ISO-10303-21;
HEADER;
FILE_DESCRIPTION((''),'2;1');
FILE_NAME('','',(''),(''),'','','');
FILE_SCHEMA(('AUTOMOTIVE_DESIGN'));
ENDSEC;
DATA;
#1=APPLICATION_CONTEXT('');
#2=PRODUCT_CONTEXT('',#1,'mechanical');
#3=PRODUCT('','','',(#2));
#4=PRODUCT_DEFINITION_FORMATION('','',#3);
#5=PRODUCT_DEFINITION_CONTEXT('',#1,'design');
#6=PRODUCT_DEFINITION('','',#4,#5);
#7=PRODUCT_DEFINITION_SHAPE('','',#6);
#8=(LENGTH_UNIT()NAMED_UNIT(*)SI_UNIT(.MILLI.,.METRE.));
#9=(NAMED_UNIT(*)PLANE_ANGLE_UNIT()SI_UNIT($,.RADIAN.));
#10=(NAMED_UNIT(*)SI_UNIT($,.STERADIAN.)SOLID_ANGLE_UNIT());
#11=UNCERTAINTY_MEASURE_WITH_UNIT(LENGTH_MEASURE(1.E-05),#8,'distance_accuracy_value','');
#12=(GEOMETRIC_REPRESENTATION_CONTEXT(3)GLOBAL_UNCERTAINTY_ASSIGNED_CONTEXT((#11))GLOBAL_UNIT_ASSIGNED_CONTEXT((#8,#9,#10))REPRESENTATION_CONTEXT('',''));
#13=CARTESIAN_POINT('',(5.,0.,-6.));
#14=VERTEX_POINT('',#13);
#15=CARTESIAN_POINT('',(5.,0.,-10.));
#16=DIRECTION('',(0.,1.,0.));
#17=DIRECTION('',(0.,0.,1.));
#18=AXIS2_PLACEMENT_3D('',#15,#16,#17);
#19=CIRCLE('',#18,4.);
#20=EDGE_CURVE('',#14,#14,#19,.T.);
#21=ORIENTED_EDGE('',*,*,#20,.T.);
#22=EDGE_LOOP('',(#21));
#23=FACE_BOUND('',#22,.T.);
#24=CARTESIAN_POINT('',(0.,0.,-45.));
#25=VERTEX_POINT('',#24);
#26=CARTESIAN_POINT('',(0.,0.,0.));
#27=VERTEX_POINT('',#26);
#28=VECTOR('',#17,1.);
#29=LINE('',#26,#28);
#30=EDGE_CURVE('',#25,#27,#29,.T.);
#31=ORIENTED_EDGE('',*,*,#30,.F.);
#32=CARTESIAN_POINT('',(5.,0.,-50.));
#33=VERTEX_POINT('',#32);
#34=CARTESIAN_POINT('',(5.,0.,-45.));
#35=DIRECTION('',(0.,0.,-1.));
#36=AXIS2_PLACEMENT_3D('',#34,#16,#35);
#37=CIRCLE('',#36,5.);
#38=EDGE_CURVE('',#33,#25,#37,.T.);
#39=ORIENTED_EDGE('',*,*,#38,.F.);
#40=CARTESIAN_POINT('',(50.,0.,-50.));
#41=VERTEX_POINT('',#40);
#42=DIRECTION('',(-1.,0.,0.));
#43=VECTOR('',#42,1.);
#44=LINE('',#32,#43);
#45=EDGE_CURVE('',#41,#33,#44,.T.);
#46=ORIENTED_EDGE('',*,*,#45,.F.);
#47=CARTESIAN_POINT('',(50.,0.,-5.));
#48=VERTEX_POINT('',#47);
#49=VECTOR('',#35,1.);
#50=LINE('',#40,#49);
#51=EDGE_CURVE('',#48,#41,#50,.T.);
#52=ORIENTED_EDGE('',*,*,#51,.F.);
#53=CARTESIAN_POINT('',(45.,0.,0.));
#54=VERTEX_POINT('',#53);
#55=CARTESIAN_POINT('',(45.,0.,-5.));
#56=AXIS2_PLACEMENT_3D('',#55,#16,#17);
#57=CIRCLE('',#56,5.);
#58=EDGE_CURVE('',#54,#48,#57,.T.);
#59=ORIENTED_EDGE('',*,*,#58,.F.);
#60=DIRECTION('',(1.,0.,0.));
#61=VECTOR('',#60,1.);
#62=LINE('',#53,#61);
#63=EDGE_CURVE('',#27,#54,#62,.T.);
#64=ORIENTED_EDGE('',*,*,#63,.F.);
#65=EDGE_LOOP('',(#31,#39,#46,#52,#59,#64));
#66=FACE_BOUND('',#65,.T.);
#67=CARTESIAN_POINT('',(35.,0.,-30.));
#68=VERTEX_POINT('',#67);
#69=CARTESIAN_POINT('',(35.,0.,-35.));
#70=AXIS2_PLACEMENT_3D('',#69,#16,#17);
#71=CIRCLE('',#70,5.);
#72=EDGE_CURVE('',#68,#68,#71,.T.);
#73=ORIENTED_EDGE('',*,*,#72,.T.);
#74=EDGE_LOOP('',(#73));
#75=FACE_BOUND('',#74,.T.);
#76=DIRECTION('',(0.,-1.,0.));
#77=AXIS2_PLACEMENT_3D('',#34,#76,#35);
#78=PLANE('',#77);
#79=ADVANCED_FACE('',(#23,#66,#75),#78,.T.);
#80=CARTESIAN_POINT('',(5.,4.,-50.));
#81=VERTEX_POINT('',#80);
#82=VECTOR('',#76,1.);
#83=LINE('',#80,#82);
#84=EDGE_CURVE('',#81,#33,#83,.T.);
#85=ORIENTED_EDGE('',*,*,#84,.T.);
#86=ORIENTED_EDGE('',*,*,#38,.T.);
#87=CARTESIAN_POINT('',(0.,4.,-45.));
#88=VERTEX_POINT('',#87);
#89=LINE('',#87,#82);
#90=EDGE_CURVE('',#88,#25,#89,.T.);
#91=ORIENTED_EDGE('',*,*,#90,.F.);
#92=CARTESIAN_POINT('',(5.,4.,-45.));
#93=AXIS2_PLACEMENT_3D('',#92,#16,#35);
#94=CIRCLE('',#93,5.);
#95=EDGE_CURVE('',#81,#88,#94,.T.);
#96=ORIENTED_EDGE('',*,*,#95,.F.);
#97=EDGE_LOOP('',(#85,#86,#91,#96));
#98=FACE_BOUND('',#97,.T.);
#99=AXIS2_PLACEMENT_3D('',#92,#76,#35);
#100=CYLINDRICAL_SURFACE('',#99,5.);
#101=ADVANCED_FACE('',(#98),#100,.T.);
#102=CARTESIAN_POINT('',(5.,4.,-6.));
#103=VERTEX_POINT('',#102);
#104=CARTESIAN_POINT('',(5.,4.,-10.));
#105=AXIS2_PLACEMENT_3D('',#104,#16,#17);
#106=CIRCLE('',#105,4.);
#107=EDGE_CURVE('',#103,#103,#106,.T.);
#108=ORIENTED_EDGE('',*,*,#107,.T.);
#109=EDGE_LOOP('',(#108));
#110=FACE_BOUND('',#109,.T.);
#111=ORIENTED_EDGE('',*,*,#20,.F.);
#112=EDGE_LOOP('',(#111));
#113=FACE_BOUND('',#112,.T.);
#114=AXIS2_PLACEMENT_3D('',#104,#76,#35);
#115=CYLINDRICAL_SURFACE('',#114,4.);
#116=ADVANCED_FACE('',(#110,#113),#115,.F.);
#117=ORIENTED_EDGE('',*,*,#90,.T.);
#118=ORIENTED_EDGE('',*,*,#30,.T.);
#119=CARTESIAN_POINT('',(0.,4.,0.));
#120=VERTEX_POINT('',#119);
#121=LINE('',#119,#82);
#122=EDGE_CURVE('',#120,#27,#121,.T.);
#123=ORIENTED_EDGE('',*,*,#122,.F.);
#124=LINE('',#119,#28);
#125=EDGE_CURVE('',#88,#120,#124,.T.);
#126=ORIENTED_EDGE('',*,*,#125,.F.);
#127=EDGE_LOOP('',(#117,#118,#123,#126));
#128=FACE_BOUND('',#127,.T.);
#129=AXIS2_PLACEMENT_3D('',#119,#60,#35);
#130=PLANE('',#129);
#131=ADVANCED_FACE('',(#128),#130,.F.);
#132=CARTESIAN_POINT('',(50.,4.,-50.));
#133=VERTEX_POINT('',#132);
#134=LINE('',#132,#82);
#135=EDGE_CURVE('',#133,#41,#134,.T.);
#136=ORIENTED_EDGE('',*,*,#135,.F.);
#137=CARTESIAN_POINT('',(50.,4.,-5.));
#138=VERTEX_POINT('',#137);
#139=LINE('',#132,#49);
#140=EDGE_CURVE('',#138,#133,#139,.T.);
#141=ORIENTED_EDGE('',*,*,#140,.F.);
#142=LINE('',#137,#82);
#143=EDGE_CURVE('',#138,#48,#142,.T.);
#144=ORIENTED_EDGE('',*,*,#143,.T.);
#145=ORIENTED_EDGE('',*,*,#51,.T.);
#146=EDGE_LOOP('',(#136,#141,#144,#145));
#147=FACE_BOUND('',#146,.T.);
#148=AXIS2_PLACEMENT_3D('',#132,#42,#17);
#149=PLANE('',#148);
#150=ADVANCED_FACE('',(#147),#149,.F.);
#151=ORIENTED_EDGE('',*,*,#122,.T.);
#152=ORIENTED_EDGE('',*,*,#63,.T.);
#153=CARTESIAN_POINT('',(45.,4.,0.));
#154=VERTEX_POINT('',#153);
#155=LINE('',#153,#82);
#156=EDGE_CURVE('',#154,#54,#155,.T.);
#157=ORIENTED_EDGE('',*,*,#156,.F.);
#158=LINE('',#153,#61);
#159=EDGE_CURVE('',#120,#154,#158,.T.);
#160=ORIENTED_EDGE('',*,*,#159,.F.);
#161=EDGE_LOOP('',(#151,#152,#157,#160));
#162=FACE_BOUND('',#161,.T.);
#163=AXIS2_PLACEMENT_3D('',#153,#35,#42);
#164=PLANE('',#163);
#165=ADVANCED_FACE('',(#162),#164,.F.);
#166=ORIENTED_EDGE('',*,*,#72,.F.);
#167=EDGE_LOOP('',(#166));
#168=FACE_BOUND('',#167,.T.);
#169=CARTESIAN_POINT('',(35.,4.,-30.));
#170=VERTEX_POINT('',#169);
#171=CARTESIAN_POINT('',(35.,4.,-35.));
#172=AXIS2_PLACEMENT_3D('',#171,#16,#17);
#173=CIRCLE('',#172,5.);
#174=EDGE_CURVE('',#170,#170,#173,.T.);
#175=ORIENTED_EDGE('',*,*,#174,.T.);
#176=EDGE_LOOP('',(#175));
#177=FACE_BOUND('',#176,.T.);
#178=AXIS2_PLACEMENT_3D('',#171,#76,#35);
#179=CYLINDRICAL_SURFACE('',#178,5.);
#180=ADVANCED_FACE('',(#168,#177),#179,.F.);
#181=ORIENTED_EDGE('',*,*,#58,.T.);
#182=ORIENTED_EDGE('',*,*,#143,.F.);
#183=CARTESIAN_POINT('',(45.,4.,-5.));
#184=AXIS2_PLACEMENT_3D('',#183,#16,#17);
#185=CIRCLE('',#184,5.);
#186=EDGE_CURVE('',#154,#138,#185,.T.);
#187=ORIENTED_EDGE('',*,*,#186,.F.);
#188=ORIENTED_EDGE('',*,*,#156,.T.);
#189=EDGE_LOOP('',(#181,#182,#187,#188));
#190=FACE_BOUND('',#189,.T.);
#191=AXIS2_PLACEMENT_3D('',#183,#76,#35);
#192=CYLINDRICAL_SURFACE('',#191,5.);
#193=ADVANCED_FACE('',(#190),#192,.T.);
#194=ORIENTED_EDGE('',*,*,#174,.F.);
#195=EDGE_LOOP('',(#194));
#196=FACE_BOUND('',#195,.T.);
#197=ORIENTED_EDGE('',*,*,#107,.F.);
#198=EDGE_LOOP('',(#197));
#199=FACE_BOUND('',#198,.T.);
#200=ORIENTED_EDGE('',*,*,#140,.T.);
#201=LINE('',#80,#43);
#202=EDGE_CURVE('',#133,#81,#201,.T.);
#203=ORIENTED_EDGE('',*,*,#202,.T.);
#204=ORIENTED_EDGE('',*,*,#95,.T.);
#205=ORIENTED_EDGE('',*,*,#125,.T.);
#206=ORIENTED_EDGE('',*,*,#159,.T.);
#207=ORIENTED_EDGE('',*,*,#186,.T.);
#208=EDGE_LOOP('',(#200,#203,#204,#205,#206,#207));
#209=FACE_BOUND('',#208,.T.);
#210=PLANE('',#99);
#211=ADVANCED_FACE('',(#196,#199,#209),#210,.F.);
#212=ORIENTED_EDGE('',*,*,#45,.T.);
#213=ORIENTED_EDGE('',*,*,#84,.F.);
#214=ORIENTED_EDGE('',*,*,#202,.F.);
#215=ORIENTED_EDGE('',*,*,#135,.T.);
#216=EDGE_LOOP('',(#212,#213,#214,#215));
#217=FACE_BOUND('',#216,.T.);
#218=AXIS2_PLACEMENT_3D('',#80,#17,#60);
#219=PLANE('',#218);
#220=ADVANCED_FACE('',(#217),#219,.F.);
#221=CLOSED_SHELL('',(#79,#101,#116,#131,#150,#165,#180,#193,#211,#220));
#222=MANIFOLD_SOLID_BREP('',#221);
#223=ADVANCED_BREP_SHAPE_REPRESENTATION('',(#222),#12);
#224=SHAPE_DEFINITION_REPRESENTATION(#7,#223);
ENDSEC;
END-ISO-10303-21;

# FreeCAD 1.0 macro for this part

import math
import FreeCAD as App
import Part
import Sketcher
from FreeCAD import Vector

doc = App.newDocument("Part")
params = doc.addObject("Spreadsheet::Sheet", "Params")
for row, (alias, value) in enumerate([
    ("sketch1_diameter", "8 mm"),
    ("sketch1_diameter2", "10 mm"),
    ("sketch1_width", "45 mm"),
    ("pad1_length", "4 mm"),
], start=1):
    params.set(f"A{row}", alias)
    params.set(f"B{row}", "=" + value)
    params.setAlias(f"B{row}", alias)

body = doc.addObject("PartDesign::Body", "Body")

sketch1 = body.newObject("Sketcher::SketchObject", "Sketch")
sketch1.AttachmentSupport = (doc.getObject("XZ_Plane"), [""])
sketch1.MapMode = "FlatFace"
sketch1.addGeometry([
    Part.LineSegment(Vector(0, -45, 0), Vector(0, 0, 0)),
    Part.LineSegment(Vector(0, 0, 0), Vector(45, 0, 0)),
    Part.ArcOfCircle(Part.Circle(Vector(45, -5, 0), Vector(0, 0, 1), 5), math.radians(0), math.radians(90)),
    Part.LineSegment(Vector(50, -5, 0), Vector(50, -50, 0)),
    Part.LineSegment(Vector(50, -50, 0), Vector(5, -50, 0)),
    Part.ArcOfCircle(Part.Circle(Vector(5, -45, 0), Vector(0, 0, 1), 5), math.radians(180), math.radians(270)),
    Part.Circle(Vector(5, -10, 0), Vector(0, 0, 1), 4),
    Part.Circle(Vector(35, -35, 0), Vector(0, 0, 1), 5),
], False)
sketch1.addConstraint([
    Sketcher.Constraint("Coincident", 0, 2, 1, 1),
    Sketcher.Constraint("Tangent", 1, 2, 2, 2),
    Sketcher.Constraint("Tangent", 2, 1, 3, 1),
    Sketcher.Constraint("Coincident", 3, 2, 4, 1),
    Sketcher.Constraint("Tangent", 4, 2, 5, 2),
    Sketcher.Constraint("Tangent", 5, 1, 0, 1),
    Sketcher.Constraint("Vertical", 0),
    Sketcher.Constraint("Horizontal", 1),
    Sketcher.Constraint("Vertical", 3),
    Sketcher.Constraint("Horizontal", 4),
    Sketcher.Constraint("Coincident", 0, 2, -1, 1),
    Sketcher.Constraint("Equal", 2, 5),
    Sketcher.Constraint("Equal", 5, 7),
    Sketcher.Constraint("Vertical", 5, 3, 6, 3),
    Sketcher.Constraint("Equal", 4, 0),
    Sketcher.Constraint("Diameter", 6, 8.0),
    Sketcher.Constraint("Diameter", 7, 10.0),
    Sketcher.Constraint("DistanceX", 1, 1, 1, 2, 45.0),
    Sketcher.Constraint("DistanceY", 6, 3, -1, 1, 10.0),
    Sketcher.Constraint("DistanceX", -1, 1, 7, 3, 35.0),
    Sketcher.Constraint("DistanceY", 7, 3, -1, 1, 35.0),
])
sketch1.setExpression("Constraints[15]", "Params.sketch1_diameter")
sketch1.setExpression("Constraints[16]", "Params.sketch1_diameter2")
sketch1.setExpression("Constraints[17]", "Params.sketch1_width")
pad1 = body.newObject("PartDesign::Pad", "Pad")
pad1.Profile = sketch1
pad1.setExpression("Length", "Params.pad1_length")
pad1.Reversed = True

doc.recompute()
